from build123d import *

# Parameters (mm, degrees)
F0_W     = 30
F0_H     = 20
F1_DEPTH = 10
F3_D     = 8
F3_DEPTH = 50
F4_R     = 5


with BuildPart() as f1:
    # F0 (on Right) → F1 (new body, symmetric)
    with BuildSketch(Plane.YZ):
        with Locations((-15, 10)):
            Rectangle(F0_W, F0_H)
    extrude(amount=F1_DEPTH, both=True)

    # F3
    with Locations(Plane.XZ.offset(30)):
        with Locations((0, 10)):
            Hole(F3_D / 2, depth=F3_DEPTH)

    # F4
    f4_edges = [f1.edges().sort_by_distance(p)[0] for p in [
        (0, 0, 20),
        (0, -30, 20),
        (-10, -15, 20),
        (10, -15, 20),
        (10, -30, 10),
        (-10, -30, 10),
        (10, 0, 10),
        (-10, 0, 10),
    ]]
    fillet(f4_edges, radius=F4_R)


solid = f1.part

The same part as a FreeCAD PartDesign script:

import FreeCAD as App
import Part
import Sketcher


def edges_at(feature, points):
    """Names of the edges that pass closest to the given points."""
    edges = feature.Shape.Edges
    near = lambda p: min(range(len(edges)), key=lambda i: edges[i].distToShape(Part.Vertex(*p))[0])
    return sorted({f"Edge{near(p) + 1}" for p in points})


def add_polygon(sketch, points):
    """Adds a closed chain of lines whose ends are joined by coincident constraints."""
    first, n = sketch.GeometryCount, len(points)
    for a, b in zip(points, points[1:] + points[:1]):
        sketch.addGeometry(Part.LineSegment(App.Vector(*a, 0), App.Vector(*b, 0)), False)
    for i in range(n):
        sketch.addConstraint(Sketcher.Constraint("Coincident", first + i, 2, first + (i + 1) % n, 1))

doc = App.newDocument("Part")
body = doc.addObject("PartDesign::Body", "Body")

sketch1 = body.newObject("Sketcher::SketchObject", "Sketch")
sketch1.AttachmentSupport = (doc.getObject("YZ_Plane"), [""])
sketch1.MapMode = "FlatFace"
add_polygon(sketch1, [(-30, 20), (-30, 0), (0, 0), (0, 20)])
sketch1.addConstraint(Sketcher.Constraint("Vertical", 0))
sketch1.addConstraint(Sketcher.Constraint("Horizontal", 1))
sketch1.addConstraint(Sketcher.Constraint("Vertical", 2))
sketch1.addConstraint(Sketcher.Constraint("Horizontal", 3))
sketch1.addConstraint(Sketcher.Constraint("Coincident", 1, 2, -1, 1))
sketch1.addConstraint(Sketcher.Constraint("DistanceX", 1, 1, 1, 2, 30.0))
sketch1.addConstraint(Sketcher.Constraint("DistanceY", 0, 2, 0, 1, 20.0))
pad1 = body.newObject("PartDesign::Pad", "Pad")
pad1.Profile = sketch1
pad1.Length = 20
pad1.Midplane = True

sketch2 = body.newObject("Sketcher::SketchObject", "Sketch001")
sketch2.AttachmentSupport = (doc.getObject("XZ_Plane"), [""])
sketch2.MapMode = "FlatFace"
sketch2.AttachmentOffset = App.Placement(App.Vector(0, 0, 30), App.Rotation())
sketch2.addGeometry(Part.Circle(App.Vector(0, 10, 0), App.Vector(0, 0, 1), 4), False)
sketch2.addConstraint(Sketcher.Constraint("PointOnObject", 0, 3, -2))
sketch2.addConstraint(Sketcher.Constraint("Diameter", 0, 8.0))
sketch2.addConstraint(Sketcher.Constraint("DistanceY", -1, 1, 0, 3, 10.0))
doc.recompute()
hole = body.newObject("PartDesign::Hole", "Hole")
hole.Profile = sketch2
hole.ThreadType = "None"
hole.Diameter = 8
hole.DepthType = "Dimension"
hole.Depth = 50
hole.DrillPoint = "Flat"
doc.recompute()

fillet = body.newObject("PartDesign::Fillet", "Fillet")
fillet.Base = (hole, edges_at(hole, [
    (0, 0, 20),
    (0, -30, 20),
    (-10, -15, 20),
    (10, -15, 20),
    (10, -30, 10),
    (-10, -30, 10),
    (10, 0, 10),
    (-10, 0, 10),
]))
fillet.Radius = 5

doc.recompute()
